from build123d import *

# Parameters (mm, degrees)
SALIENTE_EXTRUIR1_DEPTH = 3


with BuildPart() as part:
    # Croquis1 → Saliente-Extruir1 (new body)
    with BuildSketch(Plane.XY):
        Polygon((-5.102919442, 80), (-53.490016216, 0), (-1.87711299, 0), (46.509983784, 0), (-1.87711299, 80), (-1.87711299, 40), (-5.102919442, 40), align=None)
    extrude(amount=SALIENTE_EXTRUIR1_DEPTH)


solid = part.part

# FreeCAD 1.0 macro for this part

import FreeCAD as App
import Part
import Sketcher

V = App.Vector

doc = App.newDocument("Part")
body = doc.addObject("PartDesign::Body", "Body")

sketch1 = body.newObject("Sketcher::SketchObject", "Sketch")
sketch1.AttachmentSupport = (doc.getObject("XY_Plane"), [""])
sketch1.MapMode = "FlatFace"
sketch1.addGeometry(Part.LineSegment(V(-5.1, 80, 0), V(-53.5, 0, 0)), False)
sketch1.addGeometry(Part.LineSegment(V(-53.5, 0, 0), V(46.5, 0, 0)), False)
sketch1.addGeometry(Part.LineSegment(V(46.5, 0, 0), V(-1.9, 80, 0)), False)
sketch1.addGeometry(Part.LineSegment(V(-1.9, 80, 0), V(-1.9, 40, 0)), False)
sketch1.addGeometry(Part.LineSegment(V(-1.9, 40, 0), V(-5.1, 40, 0)), False)
sketch1.addGeometry(Part.LineSegment(V(-5.1, 40, 0), V(-5.1, 80, 0)), False)
sketch1.addConstraint(Sketcher.Constraint("Coincident", 0, 2, 1, 1))
sketch1.addConstraint(Sketcher.Constraint("Coincident", 1, 2, 2, 1))
sketch1.addConstraint(Sketcher.Constraint("Coincident", 2, 2, 3, 1))
sketch1.addConstraint(Sketcher.Constraint("Coincident", 3, 2, 4, 1))
sketch1.addConstraint(Sketcher.Constraint("Coincident", 4, 2, 5, 1))
sketch1.addConstraint(Sketcher.Constraint("Coincident", 5, 2, 0, 1))
sketch1.addConstraint(Sketcher.Constraint("Horizontal", 1))
sketch1.addConstraint(Sketcher.Constraint("Vertical", 3))
sketch1.addConstraint(Sketcher.Constraint("Horizontal", 4))
sketch1.addConstraint(Sketcher.Constraint("Vertical", 5))
sketch1.addConstraint(Sketcher.Constraint("PointOnObject", 0, 2, -1))
sketch1.addConstraint(Sketcher.Constraint("Horizontal", 2, 2, 5, 2))
sketch1.addConstraint(Sketcher.Constraint("Equal", 0, 2))
sketch1.addConstraint(Sketcher.Constraint("DistanceX", 1, 1, 1, 2, 100.0))
sketch1.addConstraint(Sketcher.Constraint("DistanceY", 3, 2, 3, 1, 40.0))
sketch1.addConstraint(Sketcher.Constraint("DistanceY", -1, 1, 2, 2, 80.0))
sketch1.addConstraint(Sketcher.Constraint("Distance", 0, 93.494979))
sketch1.addConstraint(Sketcher.Constraint("DistanceX", 4, 2, -1, 1, 5.102919))
pad1 = body.newObject("PartDesign::Pad", "Pad")
pad1.Profile = sketch1
pad1.Length = 3

doc.recompute()
